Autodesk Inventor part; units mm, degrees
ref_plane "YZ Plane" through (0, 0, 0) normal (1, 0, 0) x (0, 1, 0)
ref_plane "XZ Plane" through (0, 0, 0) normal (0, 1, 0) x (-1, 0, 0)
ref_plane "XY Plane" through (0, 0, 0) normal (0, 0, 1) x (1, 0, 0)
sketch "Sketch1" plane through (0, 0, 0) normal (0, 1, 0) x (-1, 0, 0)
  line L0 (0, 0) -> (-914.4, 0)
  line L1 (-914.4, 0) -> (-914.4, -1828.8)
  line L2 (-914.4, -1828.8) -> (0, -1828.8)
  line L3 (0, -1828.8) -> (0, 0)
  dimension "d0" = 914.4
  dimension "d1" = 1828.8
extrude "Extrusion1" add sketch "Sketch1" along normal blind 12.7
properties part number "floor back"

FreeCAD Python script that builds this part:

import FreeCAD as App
import Part
import Sketcher

V = App.Vector
Q = App.Units.Quantity

doc = App.newDocument("Part")
body = doc.addObject("PartDesign::Body", "Body")

sketch1 = body.newObject("Sketcher::SketchObject", "Sketch")
sketch1.AttachmentSupport = (doc.getObject("XZ_Plane"), [""])
sketch1.MapMode = "FlatFace"
sketch1.addGeometry(Part.LineSegment(V(0, -1829, 0), V(0, 0, 0)), False)
sketch1.addGeometry(Part.LineSegment(V(0, 0, 0), V(914, 0, 0)), False)
sketch1.addGeometry(Part.LineSegment(V(914, 0, 0), V(914, -1829, 0)), False)
sketch1.addGeometry(Part.LineSegment(V(914, -1829, 0), V(0, -1829, 0)), False)
sketch1.addConstraint(Sketcher.Constraint("Coincident", 0, 2, 1, 1))
sketch1.addConstraint(Sketcher.Constraint("Coincident", 1, 2, 2, 1))
sketch1.addConstraint(Sketcher.Constraint("Coincident", 2, 2, 3, 1))
sketch1.addConstraint(Sketcher.Constraint("Coincident", 3, 2, 0, 1))
sketch1.addConstraint(Sketcher.Constraint("Vertical", 0))
sketch1.addConstraint(Sketcher.Constraint("Horizontal", 1))
sketch1.addConstraint(Sketcher.Constraint("Vertical", 2))
sketch1.addConstraint(Sketcher.Constraint("Horizontal", 3))
sketch1.addConstraint(Sketcher.Constraint("Coincident", 0, 2, -1, 1))
sketch1.addConstraint(Sketcher.Constraint("DistanceX", 1, 1, 1, 2, Q("36 in")))
sketch1.addConstraint(Sketcher.Constraint("DistanceY", 0, 1, 0, 2, Q("72 in")))
pad1 = body.newObject("PartDesign::Pad", "Pad")
pad1.Profile = sketch1
pad1.Length = Q("0.5 in")
pad1.Reversed = True

doc.recompute()
